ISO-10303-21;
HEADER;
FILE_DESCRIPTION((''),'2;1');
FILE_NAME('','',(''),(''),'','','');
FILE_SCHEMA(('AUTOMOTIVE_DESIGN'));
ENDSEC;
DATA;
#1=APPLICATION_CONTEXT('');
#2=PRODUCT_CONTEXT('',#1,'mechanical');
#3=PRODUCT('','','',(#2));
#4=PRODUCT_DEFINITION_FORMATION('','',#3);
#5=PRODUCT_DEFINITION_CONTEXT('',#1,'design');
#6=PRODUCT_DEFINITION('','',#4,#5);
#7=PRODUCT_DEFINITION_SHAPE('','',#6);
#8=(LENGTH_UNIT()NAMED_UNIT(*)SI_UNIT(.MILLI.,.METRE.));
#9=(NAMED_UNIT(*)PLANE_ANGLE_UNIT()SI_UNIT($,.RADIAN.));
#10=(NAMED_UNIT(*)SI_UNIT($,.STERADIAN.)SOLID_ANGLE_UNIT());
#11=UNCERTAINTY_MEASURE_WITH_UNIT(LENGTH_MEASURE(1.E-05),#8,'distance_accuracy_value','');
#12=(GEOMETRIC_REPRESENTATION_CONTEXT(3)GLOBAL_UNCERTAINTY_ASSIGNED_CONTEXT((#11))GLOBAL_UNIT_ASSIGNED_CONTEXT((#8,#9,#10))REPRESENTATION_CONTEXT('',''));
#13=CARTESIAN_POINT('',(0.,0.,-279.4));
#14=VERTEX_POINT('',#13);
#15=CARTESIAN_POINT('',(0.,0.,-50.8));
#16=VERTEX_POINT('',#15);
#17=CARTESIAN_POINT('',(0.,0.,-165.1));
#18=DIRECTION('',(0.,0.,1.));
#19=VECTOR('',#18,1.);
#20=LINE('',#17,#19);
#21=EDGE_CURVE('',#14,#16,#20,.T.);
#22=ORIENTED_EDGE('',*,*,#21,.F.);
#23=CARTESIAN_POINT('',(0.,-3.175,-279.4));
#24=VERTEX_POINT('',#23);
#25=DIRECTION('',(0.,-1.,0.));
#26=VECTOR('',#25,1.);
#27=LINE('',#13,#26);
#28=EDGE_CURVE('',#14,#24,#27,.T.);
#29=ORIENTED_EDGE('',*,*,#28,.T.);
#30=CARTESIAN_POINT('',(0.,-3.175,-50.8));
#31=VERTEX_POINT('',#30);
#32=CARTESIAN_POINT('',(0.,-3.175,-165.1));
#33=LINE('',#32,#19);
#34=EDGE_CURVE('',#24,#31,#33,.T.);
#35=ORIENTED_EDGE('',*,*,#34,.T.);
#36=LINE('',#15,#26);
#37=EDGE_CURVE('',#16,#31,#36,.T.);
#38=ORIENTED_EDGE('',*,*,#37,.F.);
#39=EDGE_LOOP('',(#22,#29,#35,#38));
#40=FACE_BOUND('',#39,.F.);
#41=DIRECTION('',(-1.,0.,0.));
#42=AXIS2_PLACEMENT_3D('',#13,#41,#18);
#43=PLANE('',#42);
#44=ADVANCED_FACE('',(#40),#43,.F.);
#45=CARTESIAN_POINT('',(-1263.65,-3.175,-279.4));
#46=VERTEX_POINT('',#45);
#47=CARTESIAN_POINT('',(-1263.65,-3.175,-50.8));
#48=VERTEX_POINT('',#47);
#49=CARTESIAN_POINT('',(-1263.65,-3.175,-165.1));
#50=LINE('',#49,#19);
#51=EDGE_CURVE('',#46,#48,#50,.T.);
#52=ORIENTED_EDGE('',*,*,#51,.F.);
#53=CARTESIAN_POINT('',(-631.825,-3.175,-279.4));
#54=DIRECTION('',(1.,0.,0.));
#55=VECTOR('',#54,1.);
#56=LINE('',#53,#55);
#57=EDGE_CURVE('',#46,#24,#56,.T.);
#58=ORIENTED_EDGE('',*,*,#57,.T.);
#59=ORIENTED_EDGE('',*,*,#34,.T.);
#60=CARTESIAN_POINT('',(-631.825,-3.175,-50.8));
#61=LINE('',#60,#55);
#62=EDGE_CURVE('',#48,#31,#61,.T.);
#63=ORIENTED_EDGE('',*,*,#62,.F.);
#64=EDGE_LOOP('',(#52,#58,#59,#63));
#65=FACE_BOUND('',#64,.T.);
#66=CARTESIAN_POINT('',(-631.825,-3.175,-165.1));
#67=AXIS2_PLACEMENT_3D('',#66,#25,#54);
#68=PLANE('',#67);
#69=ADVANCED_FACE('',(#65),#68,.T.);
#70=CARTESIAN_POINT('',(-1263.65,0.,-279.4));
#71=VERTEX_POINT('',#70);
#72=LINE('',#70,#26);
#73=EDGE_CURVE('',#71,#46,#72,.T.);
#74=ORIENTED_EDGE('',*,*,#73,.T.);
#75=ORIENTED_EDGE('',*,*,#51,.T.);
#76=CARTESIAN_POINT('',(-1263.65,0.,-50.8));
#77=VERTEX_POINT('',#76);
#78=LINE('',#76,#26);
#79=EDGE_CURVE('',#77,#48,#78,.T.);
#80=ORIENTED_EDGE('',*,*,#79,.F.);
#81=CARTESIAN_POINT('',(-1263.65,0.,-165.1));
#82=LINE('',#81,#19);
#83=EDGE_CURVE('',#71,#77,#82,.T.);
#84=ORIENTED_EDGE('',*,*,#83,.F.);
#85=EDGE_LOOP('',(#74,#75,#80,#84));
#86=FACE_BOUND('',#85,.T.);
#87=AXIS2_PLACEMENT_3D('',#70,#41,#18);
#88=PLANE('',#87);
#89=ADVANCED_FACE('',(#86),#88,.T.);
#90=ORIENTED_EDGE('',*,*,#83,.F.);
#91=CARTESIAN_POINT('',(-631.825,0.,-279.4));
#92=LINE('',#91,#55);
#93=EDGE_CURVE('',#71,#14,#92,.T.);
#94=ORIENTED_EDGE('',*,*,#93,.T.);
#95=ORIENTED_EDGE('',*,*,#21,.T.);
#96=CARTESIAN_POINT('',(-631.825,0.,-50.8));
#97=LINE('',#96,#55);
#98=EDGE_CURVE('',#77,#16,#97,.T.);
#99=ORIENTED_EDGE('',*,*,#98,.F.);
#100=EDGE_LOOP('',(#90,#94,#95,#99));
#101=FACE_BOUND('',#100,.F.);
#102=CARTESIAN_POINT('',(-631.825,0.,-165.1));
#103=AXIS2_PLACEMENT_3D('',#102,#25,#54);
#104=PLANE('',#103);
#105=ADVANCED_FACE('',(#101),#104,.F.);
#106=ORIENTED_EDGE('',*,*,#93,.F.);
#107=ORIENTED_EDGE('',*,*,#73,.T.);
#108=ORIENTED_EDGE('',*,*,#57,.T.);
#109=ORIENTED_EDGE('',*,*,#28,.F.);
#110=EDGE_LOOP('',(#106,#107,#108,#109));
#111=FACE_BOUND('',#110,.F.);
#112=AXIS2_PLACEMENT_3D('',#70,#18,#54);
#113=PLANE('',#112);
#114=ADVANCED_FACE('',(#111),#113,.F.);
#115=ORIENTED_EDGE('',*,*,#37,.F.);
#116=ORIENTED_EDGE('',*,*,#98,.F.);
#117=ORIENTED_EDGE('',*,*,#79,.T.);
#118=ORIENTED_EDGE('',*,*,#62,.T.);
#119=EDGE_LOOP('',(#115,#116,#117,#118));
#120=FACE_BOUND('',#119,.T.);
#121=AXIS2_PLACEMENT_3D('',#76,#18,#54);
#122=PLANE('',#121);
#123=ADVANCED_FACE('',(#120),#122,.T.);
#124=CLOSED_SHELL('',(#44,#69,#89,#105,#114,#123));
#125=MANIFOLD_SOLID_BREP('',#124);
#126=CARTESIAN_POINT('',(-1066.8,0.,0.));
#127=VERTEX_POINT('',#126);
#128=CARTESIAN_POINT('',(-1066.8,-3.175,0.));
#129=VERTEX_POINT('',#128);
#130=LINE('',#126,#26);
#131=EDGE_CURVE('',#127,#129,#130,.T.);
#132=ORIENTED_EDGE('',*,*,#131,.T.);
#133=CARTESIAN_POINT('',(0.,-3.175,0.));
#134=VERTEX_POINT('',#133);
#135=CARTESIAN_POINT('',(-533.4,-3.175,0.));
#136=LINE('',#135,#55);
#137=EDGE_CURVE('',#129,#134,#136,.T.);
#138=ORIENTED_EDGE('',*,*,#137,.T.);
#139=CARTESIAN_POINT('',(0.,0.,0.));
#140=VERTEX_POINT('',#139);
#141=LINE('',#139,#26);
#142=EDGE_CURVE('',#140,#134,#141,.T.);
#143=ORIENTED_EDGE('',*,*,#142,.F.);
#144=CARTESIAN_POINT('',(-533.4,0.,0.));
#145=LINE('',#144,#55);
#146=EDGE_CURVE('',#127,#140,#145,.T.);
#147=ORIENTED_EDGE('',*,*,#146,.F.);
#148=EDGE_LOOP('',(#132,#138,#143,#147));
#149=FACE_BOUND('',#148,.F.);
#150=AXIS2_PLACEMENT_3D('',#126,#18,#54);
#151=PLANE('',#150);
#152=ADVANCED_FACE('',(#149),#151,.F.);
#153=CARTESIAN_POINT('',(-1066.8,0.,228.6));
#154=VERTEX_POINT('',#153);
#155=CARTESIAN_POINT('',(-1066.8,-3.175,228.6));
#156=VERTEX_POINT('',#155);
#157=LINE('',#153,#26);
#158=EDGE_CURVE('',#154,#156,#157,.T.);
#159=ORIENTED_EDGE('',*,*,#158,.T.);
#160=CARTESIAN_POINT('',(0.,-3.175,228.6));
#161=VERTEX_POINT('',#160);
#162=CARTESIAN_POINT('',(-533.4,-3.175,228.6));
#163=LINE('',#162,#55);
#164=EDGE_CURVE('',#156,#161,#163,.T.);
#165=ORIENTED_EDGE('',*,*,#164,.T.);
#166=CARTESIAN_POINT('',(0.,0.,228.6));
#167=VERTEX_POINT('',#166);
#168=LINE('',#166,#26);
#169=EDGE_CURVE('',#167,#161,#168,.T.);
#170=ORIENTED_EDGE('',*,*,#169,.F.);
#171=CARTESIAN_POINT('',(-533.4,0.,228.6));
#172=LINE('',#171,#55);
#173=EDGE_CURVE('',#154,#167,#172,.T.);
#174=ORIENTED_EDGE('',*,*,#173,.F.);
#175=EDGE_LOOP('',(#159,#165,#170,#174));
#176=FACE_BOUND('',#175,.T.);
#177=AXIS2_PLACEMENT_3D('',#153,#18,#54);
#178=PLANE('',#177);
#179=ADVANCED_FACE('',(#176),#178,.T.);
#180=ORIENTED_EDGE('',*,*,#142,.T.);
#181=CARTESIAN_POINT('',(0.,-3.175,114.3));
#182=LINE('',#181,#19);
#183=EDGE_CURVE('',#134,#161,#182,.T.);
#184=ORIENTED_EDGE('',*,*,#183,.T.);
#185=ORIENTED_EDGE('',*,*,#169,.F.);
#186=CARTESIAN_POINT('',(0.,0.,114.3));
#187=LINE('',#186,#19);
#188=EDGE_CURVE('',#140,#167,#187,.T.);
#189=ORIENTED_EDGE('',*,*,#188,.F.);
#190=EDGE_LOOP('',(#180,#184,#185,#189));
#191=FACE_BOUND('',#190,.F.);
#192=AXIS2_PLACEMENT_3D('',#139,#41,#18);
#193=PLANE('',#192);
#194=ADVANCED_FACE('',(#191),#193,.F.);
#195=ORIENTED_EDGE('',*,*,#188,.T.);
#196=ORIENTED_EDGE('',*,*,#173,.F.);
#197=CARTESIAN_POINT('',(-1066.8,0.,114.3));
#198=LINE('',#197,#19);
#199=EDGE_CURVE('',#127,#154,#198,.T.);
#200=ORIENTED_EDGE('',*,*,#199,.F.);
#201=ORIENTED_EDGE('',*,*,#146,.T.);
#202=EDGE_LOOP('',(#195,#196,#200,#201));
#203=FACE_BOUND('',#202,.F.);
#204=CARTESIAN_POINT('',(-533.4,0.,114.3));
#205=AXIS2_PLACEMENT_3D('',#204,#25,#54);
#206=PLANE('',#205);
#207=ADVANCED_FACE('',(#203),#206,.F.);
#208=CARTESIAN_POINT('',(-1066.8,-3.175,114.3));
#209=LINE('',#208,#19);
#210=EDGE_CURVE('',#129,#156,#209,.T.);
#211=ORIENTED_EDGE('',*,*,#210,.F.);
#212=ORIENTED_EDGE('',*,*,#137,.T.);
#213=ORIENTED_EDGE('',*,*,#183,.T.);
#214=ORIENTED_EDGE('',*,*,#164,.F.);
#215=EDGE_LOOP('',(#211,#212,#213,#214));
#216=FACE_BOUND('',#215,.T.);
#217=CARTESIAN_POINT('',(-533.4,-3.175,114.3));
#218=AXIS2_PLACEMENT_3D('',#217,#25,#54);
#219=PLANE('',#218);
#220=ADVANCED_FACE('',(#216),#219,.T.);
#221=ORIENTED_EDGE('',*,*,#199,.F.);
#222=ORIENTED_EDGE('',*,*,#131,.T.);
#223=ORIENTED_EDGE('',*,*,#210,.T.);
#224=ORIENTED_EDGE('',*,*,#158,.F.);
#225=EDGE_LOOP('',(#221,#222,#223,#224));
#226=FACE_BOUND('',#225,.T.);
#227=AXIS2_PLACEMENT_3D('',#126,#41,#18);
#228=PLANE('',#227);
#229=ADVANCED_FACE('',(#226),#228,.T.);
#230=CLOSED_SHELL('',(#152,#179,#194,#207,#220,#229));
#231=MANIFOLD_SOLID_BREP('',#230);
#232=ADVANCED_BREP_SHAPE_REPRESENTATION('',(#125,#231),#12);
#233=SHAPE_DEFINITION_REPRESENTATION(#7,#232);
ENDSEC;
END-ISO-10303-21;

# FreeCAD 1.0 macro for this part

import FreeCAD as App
import Part
import Sketcher
Q = App.Units.Quantity

doc = App.newDocument("Part")
body = doc.addObject("PartDesign::Body", "Body")
body.AllowCompound = True

# Sketch on XZ plane
sketch1 = body.newObject("Sketcher::SketchObject", "Sketch")
sketch1.AttachmentSupport = (doc.getObject("XZ_Plane"), [""])
sketch1.MapMode = "FlatFace"
sketch1.addGeometry(Part.LineSegment(App.Vector(-1067, 229, 0), App.Vector(-1067, 0, 0)), False)
sketch1.addGeometry(Part.LineSegment(App.Vector(-1067, 0, 0), App.Vector(0, 0, 0)), False)
sketch1.addGeometry(Part.LineSegment(App.Vector(0, 0, 0), App.Vector(0, 229, 0)), False)
sketch1.addGeometry(Part.LineSegment(App.Vector(0, 229, 0), App.Vector(-1067, 229, 0)), False)
sketch1.addGeometry(Part.LineSegment(App.Vector(-1264, -51, 0), App.Vector(-1264, -279, 0)), False)
sketch1.addGeometry(Part.LineSegment(App.Vector(-1264, -279, 0), App.Vector(0, -279, 0)), False)
sketch1.addGeometry(Part.LineSegment(App.Vector(0, -279, 0), App.Vector(0, -51, 0)), False)
sketch1.addGeometry(Part.LineSegment(App.Vector(0, -51, 0), App.Vector(-1264, -51, 0)), False)
sketch1.addConstraint(Sketcher.Constraint("Coincident", 0, 2, 1, 1))
sketch1.addConstraint(Sketcher.Constraint("Coincident", 1, 2, 2, 1))
sketch1.addConstraint(Sketcher.Constraint("Coincident", 2, 2, 3, 1))
sketch1.addConstraint(Sketcher.Constraint("Coincident", 3, 2, 0, 1))
sketch1.addConstraint(Sketcher.Constraint("Coincident", 4, 2, 5, 1))
sketch1.addConstraint(Sketcher.Constraint("Coincident", 5, 2, 6, 1))
sketch1.addConstraint(Sketcher.Constraint("Coincident", 6, 2, 7, 1))
sketch1.addConstraint(Sketcher.Constraint("Coincident", 7, 2, 4, 1))
sketch1.addConstraint(Sketcher.Constraint("Vertical", 0))
sketch1.addConstraint(Sketcher.Constraint("Horizontal", 1))
sketch1.addConstraint(Sketcher.Constraint("Vertical", 2))
sketch1.addConstraint(Sketcher.Constraint("Horizontal", 3))
sketch1.addConstraint(Sketcher.Constraint("Vertical", 4))
sketch1.addConstraint(Sketcher.Constraint("Horizontal", 5))
sketch1.addConstraint(Sketcher.Constraint("Vertical", 6))
sketch1.addConstraint(Sketcher.Constraint("Horizontal", 7))
sketch1.addConstraint(Sketcher.Constraint("Coincident", 1, 2, -1, 1))
sketch1.addConstraint(Sketcher.Constraint("PointOnObject", 5, 2, -2))
sketch1.addConstraint(Sketcher.Constraint("Equal", 2, 4))
sketch1.addConstraint(Sketcher.Constraint("DistanceX", 1, 1, 1, 2, Q("42 in")))
sketch1.addConstraint(Sketcher.Constraint("DistanceY", 0, 2, 0, 1, Q("9 in")))
sketch1.addConstraint(Sketcher.Constraint("DistanceY", 4, 2, -1, 1, Q("11 in")))
sketch1.addConstraint(Sketcher.Constraint("DistanceX", 5, 1, 5, 2, Q("49.75 in")))
pad1 = body.newObject("PartDesign::Pad", "Pad")
pad1.Profile = sketch1
pad1.Length = Q("0.125 in")

doc.recompute()
